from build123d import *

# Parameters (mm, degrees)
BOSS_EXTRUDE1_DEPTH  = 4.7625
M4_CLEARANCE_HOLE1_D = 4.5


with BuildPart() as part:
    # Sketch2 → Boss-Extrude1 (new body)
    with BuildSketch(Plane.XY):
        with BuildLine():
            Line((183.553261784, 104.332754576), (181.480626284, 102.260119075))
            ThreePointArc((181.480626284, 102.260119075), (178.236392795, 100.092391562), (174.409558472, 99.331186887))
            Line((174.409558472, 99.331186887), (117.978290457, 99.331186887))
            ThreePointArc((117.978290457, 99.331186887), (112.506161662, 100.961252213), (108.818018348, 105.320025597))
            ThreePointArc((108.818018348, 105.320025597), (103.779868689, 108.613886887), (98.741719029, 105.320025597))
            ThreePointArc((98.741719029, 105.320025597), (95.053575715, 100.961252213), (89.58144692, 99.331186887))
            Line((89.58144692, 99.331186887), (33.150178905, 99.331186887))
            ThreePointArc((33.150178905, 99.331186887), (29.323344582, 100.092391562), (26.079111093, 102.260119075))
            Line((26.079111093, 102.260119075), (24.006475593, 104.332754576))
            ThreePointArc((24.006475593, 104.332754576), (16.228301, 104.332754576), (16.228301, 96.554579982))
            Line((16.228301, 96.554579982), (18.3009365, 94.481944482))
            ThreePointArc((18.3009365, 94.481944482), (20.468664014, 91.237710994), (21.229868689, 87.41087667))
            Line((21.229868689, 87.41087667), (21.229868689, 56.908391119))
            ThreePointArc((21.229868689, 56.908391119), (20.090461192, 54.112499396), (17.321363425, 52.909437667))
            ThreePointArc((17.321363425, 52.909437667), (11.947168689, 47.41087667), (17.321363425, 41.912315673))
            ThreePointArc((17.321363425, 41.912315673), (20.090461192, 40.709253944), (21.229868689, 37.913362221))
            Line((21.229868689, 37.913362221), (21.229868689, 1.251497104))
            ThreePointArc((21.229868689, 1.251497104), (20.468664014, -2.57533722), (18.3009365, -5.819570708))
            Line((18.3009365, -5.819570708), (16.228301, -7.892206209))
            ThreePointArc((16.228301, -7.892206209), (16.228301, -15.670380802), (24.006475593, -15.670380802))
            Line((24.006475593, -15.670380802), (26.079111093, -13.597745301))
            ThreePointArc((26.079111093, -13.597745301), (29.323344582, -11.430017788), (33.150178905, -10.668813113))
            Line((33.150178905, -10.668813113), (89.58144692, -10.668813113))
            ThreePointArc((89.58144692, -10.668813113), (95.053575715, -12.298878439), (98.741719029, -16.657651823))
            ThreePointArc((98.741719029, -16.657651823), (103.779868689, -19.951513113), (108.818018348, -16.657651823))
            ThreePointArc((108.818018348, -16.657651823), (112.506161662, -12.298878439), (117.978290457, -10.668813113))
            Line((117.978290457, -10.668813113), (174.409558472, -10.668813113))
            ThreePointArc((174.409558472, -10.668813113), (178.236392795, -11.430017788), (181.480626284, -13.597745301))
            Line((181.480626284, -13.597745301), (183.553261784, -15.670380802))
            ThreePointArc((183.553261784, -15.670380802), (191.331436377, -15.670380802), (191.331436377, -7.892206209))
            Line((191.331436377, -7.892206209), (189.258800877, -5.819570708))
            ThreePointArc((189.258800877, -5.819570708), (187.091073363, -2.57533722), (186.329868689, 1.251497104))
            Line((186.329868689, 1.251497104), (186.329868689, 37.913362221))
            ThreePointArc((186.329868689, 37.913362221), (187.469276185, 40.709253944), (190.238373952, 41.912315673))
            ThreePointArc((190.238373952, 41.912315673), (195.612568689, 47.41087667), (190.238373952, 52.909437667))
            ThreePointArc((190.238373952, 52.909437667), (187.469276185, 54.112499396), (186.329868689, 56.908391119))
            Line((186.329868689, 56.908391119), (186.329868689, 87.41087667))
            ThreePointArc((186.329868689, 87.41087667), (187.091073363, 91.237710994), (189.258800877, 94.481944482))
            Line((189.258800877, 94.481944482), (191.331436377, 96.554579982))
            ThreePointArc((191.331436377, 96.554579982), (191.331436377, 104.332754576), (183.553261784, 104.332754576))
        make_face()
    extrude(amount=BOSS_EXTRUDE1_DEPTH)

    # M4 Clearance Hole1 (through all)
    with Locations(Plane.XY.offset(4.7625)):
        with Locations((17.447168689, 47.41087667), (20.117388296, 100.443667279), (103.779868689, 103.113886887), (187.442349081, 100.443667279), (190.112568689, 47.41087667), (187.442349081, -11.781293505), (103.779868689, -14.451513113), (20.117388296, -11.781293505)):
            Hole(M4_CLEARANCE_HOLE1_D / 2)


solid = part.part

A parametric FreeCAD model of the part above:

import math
import FreeCAD as App
import Part
import Sketcher
from FreeCAD import Vector
Q = App.Units.Quantity

doc = App.newDocument("Part")
params = doc.addObject("Spreadsheet::Sheet", "Params")
for row, (alias, value) in enumerate([
    ("sketch1_radius", "10 mm"),
    ("sketch1_radius2", "4 mm"),
    ("sketch1_radius3", "5.5 mm"),
    ("pad1_length", "4.7625 mm"),
    ("sketch2_diameter", "4.5 mm"),
    ("hole_diameter", "4.5 mm"),
], start=1):
    params.set(f"A{row}", alias)
    params.set(f"B{row}", "=" + value)
    params.setAlias(f"B{row}", alias)

body = doc.addObject("PartDesign::Body", "Body")

sketch1 = body.newObject("Sketcher::SketchObject", "Sketch")
sketch1.AttachmentSupport = (doc.getObject("XY_Plane"), [""])
sketch1.MapMode = "FlatFace"
sketch1.addGeometry([
    Part.LineSegment(Vector(183.6, 104.3, 0), Vector(181.5, 102.3, 0)),
    Part.ArcOfCircle(Part.Circle(Vector(174.4, 109.3, 0), Vector(0, 0, 1), 10), math.radians(-90), math.radians(-45)),
    Part.LineSegment(Vector(174.4, 99.3, 0), Vector(118, 99.3, 0)),
    Part.ArcOfCircle(Part.Circle(Vector(118, 109.3, 0), Vector(0, 0, 1), 10), math.radians(-156), math.radians(-90)),
    Part.ArcOfCircle(Part.Circle(Vector(103.8, 103.1, 0), Vector(0, 0, 1), 5.5), math.radians(24), math.radians(156)),
    Part.ArcOfCircle(Part.Circle(Vector(89.6, 109.3, 0), Vector(0, 0, 1), 10), math.radians(-90), math.radians(-24)),
    Part.LineSegment(Vector(89.6, 99.3, 0), Vector(33.2, 99.3, 0)),
    Part.ArcOfCircle(Part.Circle(Vector(33.2, 109.3, 0), Vector(0, 0, 1), 10), math.radians(-135), math.radians(-90)),
    Part.LineSegment(Vector(26.1, 102.3, 0), Vector(24, 104.3, 0)),
    Part.ArcOfCircle(Part.Circle(Vector(20.1, 100.4, 0), Vector(0, 0, 1), 5.5), math.radians(45), math.radians(225)),
    Part.LineSegment(Vector(16.2, 96.6, 0), Vector(18.3, 94.5, 0)),
    Part.ArcOfCircle(Part.Circle(Vector(11.2, 87.4, 0), Vector(0, 0, 1), 10), math.radians(0), math.radians(45)),
    Part.LineSegment(Vector(21.2, 87.4, 0), Vector(21.2, 56.9, 0)),
    Part.ArcOfCircle(Part.Circle(Vector(17.2, 56.9, 0), Vector(0, 0, 1), 4), math.radians(-89), math.radians(0)),
    Part.ArcOfCircle(Part.Circle(Vector(17.4, 47.4, 0), Vector(0, 0, 1), 5.5), math.radians(91), math.radians(269)),
    Part.ArcOfCircle(Part.Circle(Vector(17.2, 37.9, 0), Vector(0, 0, 1), 4), math.radians(0), math.radians(89)),
    Part.LineSegment(Vector(21.2, 37.9, 0), Vector(21.2, 1.3, 0)),
    Part.ArcOfCircle(Part.Circle(Vector(11.2, 1.3, 0), Vector(0, 0, 1), 10), math.radians(-45), math.radians(0)),
    Part.LineSegment(Vector(18.3, -5.8, 0), Vector(16.2, -7.9, 0)),
    Part.ArcOfCircle(Part.Circle(Vector(20.1, -11.8, 0), Vector(0, 0, 1), 5.5), math.radians(135), math.radians(315)),
    Part.LineSegment(Vector(24, -15.7, 0), Vector(26.1, -13.6, 0)),
    Part.ArcOfCircle(Part.Circle(Vector(33.2, -20.7, 0), Vector(0, 0, 1), 10), math.radians(90), math.radians(135)),
    Part.LineSegment(Vector(33.2, -10.7, 0), Vector(89.6, -10.7, 0)),
    Part.ArcOfCircle(Part.Circle(Vector(89.6, -20.7, 0), Vector(0, 0, 1), 10), math.radians(24), math.radians(90)),
    Part.ArcOfCircle(Part.Circle(Vector(103.8, -14.5, 0), Vector(0, 0, 1), 5.5), math.radians(-156), math.radians(-24)),
    Part.ArcOfCircle(Part.Circle(Vector(118, -20.7, 0), Vector(0, 0, 1), 10), math.radians(90), math.radians(156)),
    Part.LineSegment(Vector(118, -10.7, 0), Vector(174.4, -10.7, 0)),
    Part.ArcOfCircle(Part.Circle(Vector(174.4, -20.7, 0), Vector(0, 0, 1), 10), math.radians(45), math.radians(90)),
    Part.LineSegment(Vector(181.5, -13.6, 0), Vector(183.6, -15.7, 0)),
    Part.ArcOfCircle(Part.Circle(Vector(187.4, -11.8, 0), Vector(0, 0, 1), 5.5), math.radians(-135), math.radians(45)),
    Part.LineSegment(Vector(191.3, -7.9, 0), Vector(189.3, -5.8, 0)),
    Part.ArcOfCircle(Part.Circle(Vector(196.3, 1.3, 0), Vector(0, 0, 1), 10), math.radians(180), math.radians(225)),
    Part.LineSegment(Vector(186.3, 1.3, 0), Vector(186.3, 37.9, 0)),
    Part.ArcOfCircle(Part.Circle(Vector(190.3, 37.9, 0), Vector(0, 0, 1), 4), math.radians(91), math.radians(180)),
    Part.ArcOfCircle(Part.Circle(Vector(190.1, 47.4, 0), Vector(0, 0, 1), 5.5), math.radians(-89), math.radians(89)),
    Part.ArcOfCircle(Part.Circle(Vector(190.3, 56.9, 0), Vector(0, 0, 1), 4), math.radians(180), math.radians(269)),
    Part.LineSegment(Vector(186.3, 56.9, 0), Vector(186.3, 87.4, 0)),
    Part.ArcOfCircle(Part.Circle(Vector(196.3, 87.4, 0), Vector(0, 0, 1), 10), math.radians(135), math.radians(180)),
    Part.LineSegment(Vector(189.3, 94.5, 0), Vector(191.3, 96.6, 0)),
    Part.ArcOfCircle(Part.Circle(Vector(187.4, 100.4, 0), Vector(0, 0, 1), 5.5), math.radians(-45), math.radians(135)),
], False)
sketch1.addConstraint([
    Sketcher.Constraint("Tangent", 0, 2, 1, 2),
    Sketcher.Constraint("Tangent", 1, 1, 2, 1),
    Sketcher.Constraint("Tangent", 2, 2, 3, 2),
    Sketcher.Constraint("Tangent", 3, 1, 4, 1),
    Sketcher.Constraint("Tangent", 4, 2, 5, 2),
    Sketcher.Constraint("Tangent", 5, 1, 6, 1),
    Sketcher.Constraint("Tangent", 6, 2, 7, 2),
    Sketcher.Constraint("Tangent", 7, 1, 8, 1),
    Sketcher.Constraint("Tangent", 8, 2, 9, 1),
    Sketcher.Constraint("Tangent", 9, 2, 10, 1),
    Sketcher.Constraint("Tangent", 10, 2, 11, 2),
    Sketcher.Constraint("Tangent", 11, 1, 12, 1),
    Sketcher.Constraint("Tangent", 12, 2, 13, 2),
    Sketcher.Constraint("Tangent", 13, 1, 14, 1),
    Sketcher.Constraint("Tangent", 14, 2, 15, 2),
    Sketcher.Constraint("Tangent", 15, 1, 16, 1),
    Sketcher.Constraint("Tangent", 16, 2, 17, 2),
    Sketcher.Constraint("Tangent", 17, 1, 18, 1),
    Sketcher.Constraint("Tangent", 18, 2, 19, 1),
    Sketcher.Constraint("Tangent", 19, 2, 20, 1),
    Sketcher.Constraint("Tangent", 20, 2, 21, 2),
    Sketcher.Constraint("Tangent", 21, 1, 22, 1),
    Sketcher.Constraint("Tangent", 22, 2, 23, 2),
    Sketcher.Constraint("Tangent", 23, 1, 24, 1),
    Sketcher.Constraint("Tangent", 24, 2, 25, 2),
    Sketcher.Constraint("Tangent", 25, 1, 26, 1),
    Sketcher.Constraint("Tangent", 26, 2, 27, 2),
    Sketcher.Constraint("Tangent", 27, 1, 28, 1),
    Sketcher.Constraint("Tangent", 28, 2, 29, 1),
    Sketcher.Constraint("Tangent", 29, 2, 30, 1),
    Sketcher.Constraint("Tangent", 30, 2, 31, 2),
    Sketcher.Constraint("Tangent", 31, 1, 32, 1),
    Sketcher.Constraint("Tangent", 32, 2, 33, 2),
    Sketcher.Constraint("Tangent", 33, 1, 34, 1),
    Sketcher.Constraint("Tangent", 34, 2, 35, 2),
    Sketcher.Constraint("Tangent", 35, 1, 36, 1),
    Sketcher.Constraint("Tangent", 36, 2, 37, 2),
    Sketcher.Constraint("Tangent", 37, 1, 38, 1),
    Sketcher.Constraint("Tangent", 38, 2, 39, 1),
    Sketcher.Constraint("Tangent", 39, 2, 0, 1),
    Sketcher.Constraint("Horizontal", 2),
    Sketcher.Constraint("Horizontal", 6),
    Sketcher.Constraint("Vertical", 12),
    Sketcher.Constraint("Vertical", 16),
    Sketcher.Constraint("Horizontal", 22),
    Sketcher.Constraint("Horizontal", 26),
    Sketcher.Constraint("Vertical", 32),
    Sketcher.Constraint("Vertical", 36),
    Sketcher.Constraint("Equal", 1, 3),
    Sketcher.Constraint("Equal", 3, 5),
    Sketcher.Constraint("Equal", 5, 7),
    Sketcher.Constraint("Equal", 4, 9),
    Sketcher.Constraint("Equal", 7, 11),
    Sketcher.Constraint("Equal", 9, 14),
    Sketcher.Constraint("Equal", 13, 15),
    Sketcher.Constraint("Equal", 11, 17),
    Sketcher.Constraint("Equal", 14, 19),
    Sketcher.Constraint("Equal", 17, 21),
    Sketcher.Constraint("Equal", 21, 23),
    Sketcher.Constraint("Equal", 19, 24),
    Sketcher.Constraint("Equal", 23, 25),
    Sketcher.Constraint("Equal", 25, 27),
    Sketcher.Constraint("Equal", 24, 29),
    Sketcher.Constraint("Equal", 27, 31),
    Sketcher.Constraint("Equal", 15, 33),
    Sketcher.Constraint("Equal", 29, 34),
    Sketcher.Constraint("Equal", 33, 35),
    Sketcher.Constraint("Equal", 31, 37),
    Sketcher.Constraint("Equal", 34, 39),
    Sketcher.Constraint("Perpendicular", 0, 8),
    Sketcher.Constraint("Parallel", 8, 10),
    Sketcher.Constraint("Perpendicular", 10, 18),
    Sketcher.Constraint("Parallel", 18, 20),
    Sketcher.Constraint("Perpendicular", 20, 28),
    Sketcher.Constraint("Parallel", 28, 30),
    Sketcher.Constraint("Perpendicular", 30, 38),
    Sketcher.Constraint("Horizontal", 3, 3, 5, 3),
    Sketcher.Constraint("Horizontal", 23, 3, 25, 3),
    Sketcher.Constraint("Horizontal", 19, 3, 29, 3),
    Sketcher.Constraint("Horizontal", 17, 3, 31, 3),
    Sketcher.Constraint("Horizontal", 15, 3, 33, 3),
    Sketcher.Constraint("Horizontal", 14, 3, 34, 3),
    Sketcher.Constraint("Horizontal", 13, 3, 35, 3),
    Sketcher.Constraint("Horizontal", 11, 3, 37, 3),
    Sketcher.Constraint("Horizontal", 9, 3, 39, 3),
    Sketcher.Constraint("Horizontal", 0, 2, 7, 1),
    Sketcher.Constraint("Vertical", 13, 3, 15, 3),
    Sketcher.Constraint("Vertical", 9, 3, 19, 3),
    Sketcher.Constraint("Vertical", 7, 3, 21, 3),
    Sketcher.Constraint("Vertical", 5, 3, 23, 3),
    Sketcher.Constraint("Vertical", 4, 3, 24, 3),
    Sketcher.Constraint("Equal", 2, 6),
    Sketcher.Constraint("Equal", 8, 10),
    Sketcher.Constraint("Radius", 1, Q("10 mm")),
    Sketcher.Constraint("Radius", 13, Q("4 mm")),
    Sketcher.Constraint("Radius", 4, Q("5.5 mm")),
    Sketcher.Constraint("DistanceX", 2, 2, 2, 1, Q("56.431268 mm")),
    Sketcher.Constraint("DistanceX", -1, 1, 9, 2, Q("16.228301 mm")),
    Sketcher.Constraint("DistanceX", -1, 1, 30, 2, Q("189.258801 mm")),
    Sketcher.Constraint("Distance", 0, Q("2.931149 mm")),
    Sketcher.Constraint("DistanceY", 12, 2, 12, 1, Q("30.502486 mm")),
    Sketcher.Constraint("DistanceY", 16, 2, 16, 1, Q("36.661865 mm")),
    Sketcher.Constraint("DistanceY", -1, 1, 13, 3, Q("56.908391 mm")),
    Sketcher.Constraint("DistanceX", -1, 1, 14, 3, Q("17.447169 mm")),
])
sketch1.setExpression("Constraints[93]", "Params.sketch1_radius")
sketch1.setExpression("Constraints[94]", "Params.sketch1_radius2")
sketch1.setExpression("Constraints[95]", "Params.sketch1_radius3")
pad1 = body.newObject("PartDesign::Pad", "Pad")
pad1.Profile = sketch1
pad1.setExpression("Length", "Params.pad1_length")

sketch2 = body.newObject("Sketcher::SketchObject", "Sketch001")
sketch2.AttachmentSupport = (doc.getObject("XY_Plane"), [""])
sketch2.MapMode = "FlatFace"
sketch2.AttachmentOffset = App.Placement(Vector(0, 0, 4.7625), App.Rotation())
sketch2.addGeometry([
    Part.Circle(Vector(17.4, 47.4, 0), Vector(0, 0, 1), 2.2),
    Part.Circle(Vector(20.1, 100.4, 0), Vector(0, 0, 1), 2.2),
    Part.Circle(Vector(103.8, 103.1, 0), Vector(0, 0, 1), 2.2),
    Part.Circle(Vector(187.4, 100.4, 0), Vector(0, 0, 1), 2.2),
    Part.Circle(Vector(190.1, 47.4, 0), Vector(0, 0, 1), 2.2),
    Part.Circle(Vector(187.4, -11.8, 0), Vector(0, 0, 1), 2.2),
    Part.Circle(Vector(103.8, -14.5, 0), Vector(0, 0, 1), 2.2),
    Part.Circle(Vector(20.1, -11.8, 0), Vector(0, 0, 1), 2.2),
], False)
sketch2.addConstraint([
    Sketcher.Constraint("Equal", 0, 1),
    Sketcher.Constraint("Equal", 1, 2),
    Sketcher.Constraint("Equal", 2, 3),
    Sketcher.Constraint("Equal", 3, 4),
    Sketcher.Constraint("Equal", 4, 5),
    Sketcher.Constraint("Equal", 5, 6),
    Sketcher.Constraint("Equal", 6, 7),
    Sketcher.Constraint("Horizontal", 1, 3, 3, 3),
    Sketcher.Constraint("Horizontal", 0, 3, 4, 3),
    Sketcher.Constraint("Horizontal", 5, 3, 7, 3),
    Sketcher.Constraint("Vertical", 3, 3, 5, 3),
    Sketcher.Constraint("Vertical", 2, 3, 6, 3),
    Sketcher.Constraint("Vertical", 1, 3, 7, 3),
    Sketcher.Constraint("Diameter", 0, Q("4.5 mm")),
    Sketcher.Constraint("DistanceX", 0, 3, 2, 3, Q("86.3327 mm")),
    Sketcher.Constraint("DistanceX", 2, 3, 4, 3, Q("86.3327 mm")),
    Sketcher.Constraint("DistanceY", 6, 3, 2, 3, Q("117.5654 mm")),
    Sketcher.Constraint("DistanceX", -1, 1, 0, 3, Q("17.447169 mm")),
    Sketcher.Constraint("DistanceX", -1, 1, 1, 3, Q("20.117388 mm")),
    Sketcher.Constraint("DistanceX", -1, 1, 3, 3, Q("187.442349 mm")),
    Sketcher.Constraint("DistanceY", 0, 3, 1, 3, Q("53.032791 mm")),
    Sketcher.Constraint("DistanceY", 1, 3, 2, 3, Q("2.67022 mm")),
    Sketcher.Constraint("DistanceY", 5, 3, 4, 3, Q("59.19217 mm")),
    Sketcher.Constraint("DistanceY", -1, 1, 0, 3, Q("47.410877 mm")),
])
sketch2.setExpression("Constraints[13]", "Params.sketch2_diameter")
doc.recompute()
hole = body.newObject("PartDesign::Hole", "Hole")
hole.Profile = sketch2
hole.ThreadType = "None"
hole.setExpression("Diameter", "Params.hole_diameter")
hole.DepthType = "ThroughAll"

doc.recompute()
